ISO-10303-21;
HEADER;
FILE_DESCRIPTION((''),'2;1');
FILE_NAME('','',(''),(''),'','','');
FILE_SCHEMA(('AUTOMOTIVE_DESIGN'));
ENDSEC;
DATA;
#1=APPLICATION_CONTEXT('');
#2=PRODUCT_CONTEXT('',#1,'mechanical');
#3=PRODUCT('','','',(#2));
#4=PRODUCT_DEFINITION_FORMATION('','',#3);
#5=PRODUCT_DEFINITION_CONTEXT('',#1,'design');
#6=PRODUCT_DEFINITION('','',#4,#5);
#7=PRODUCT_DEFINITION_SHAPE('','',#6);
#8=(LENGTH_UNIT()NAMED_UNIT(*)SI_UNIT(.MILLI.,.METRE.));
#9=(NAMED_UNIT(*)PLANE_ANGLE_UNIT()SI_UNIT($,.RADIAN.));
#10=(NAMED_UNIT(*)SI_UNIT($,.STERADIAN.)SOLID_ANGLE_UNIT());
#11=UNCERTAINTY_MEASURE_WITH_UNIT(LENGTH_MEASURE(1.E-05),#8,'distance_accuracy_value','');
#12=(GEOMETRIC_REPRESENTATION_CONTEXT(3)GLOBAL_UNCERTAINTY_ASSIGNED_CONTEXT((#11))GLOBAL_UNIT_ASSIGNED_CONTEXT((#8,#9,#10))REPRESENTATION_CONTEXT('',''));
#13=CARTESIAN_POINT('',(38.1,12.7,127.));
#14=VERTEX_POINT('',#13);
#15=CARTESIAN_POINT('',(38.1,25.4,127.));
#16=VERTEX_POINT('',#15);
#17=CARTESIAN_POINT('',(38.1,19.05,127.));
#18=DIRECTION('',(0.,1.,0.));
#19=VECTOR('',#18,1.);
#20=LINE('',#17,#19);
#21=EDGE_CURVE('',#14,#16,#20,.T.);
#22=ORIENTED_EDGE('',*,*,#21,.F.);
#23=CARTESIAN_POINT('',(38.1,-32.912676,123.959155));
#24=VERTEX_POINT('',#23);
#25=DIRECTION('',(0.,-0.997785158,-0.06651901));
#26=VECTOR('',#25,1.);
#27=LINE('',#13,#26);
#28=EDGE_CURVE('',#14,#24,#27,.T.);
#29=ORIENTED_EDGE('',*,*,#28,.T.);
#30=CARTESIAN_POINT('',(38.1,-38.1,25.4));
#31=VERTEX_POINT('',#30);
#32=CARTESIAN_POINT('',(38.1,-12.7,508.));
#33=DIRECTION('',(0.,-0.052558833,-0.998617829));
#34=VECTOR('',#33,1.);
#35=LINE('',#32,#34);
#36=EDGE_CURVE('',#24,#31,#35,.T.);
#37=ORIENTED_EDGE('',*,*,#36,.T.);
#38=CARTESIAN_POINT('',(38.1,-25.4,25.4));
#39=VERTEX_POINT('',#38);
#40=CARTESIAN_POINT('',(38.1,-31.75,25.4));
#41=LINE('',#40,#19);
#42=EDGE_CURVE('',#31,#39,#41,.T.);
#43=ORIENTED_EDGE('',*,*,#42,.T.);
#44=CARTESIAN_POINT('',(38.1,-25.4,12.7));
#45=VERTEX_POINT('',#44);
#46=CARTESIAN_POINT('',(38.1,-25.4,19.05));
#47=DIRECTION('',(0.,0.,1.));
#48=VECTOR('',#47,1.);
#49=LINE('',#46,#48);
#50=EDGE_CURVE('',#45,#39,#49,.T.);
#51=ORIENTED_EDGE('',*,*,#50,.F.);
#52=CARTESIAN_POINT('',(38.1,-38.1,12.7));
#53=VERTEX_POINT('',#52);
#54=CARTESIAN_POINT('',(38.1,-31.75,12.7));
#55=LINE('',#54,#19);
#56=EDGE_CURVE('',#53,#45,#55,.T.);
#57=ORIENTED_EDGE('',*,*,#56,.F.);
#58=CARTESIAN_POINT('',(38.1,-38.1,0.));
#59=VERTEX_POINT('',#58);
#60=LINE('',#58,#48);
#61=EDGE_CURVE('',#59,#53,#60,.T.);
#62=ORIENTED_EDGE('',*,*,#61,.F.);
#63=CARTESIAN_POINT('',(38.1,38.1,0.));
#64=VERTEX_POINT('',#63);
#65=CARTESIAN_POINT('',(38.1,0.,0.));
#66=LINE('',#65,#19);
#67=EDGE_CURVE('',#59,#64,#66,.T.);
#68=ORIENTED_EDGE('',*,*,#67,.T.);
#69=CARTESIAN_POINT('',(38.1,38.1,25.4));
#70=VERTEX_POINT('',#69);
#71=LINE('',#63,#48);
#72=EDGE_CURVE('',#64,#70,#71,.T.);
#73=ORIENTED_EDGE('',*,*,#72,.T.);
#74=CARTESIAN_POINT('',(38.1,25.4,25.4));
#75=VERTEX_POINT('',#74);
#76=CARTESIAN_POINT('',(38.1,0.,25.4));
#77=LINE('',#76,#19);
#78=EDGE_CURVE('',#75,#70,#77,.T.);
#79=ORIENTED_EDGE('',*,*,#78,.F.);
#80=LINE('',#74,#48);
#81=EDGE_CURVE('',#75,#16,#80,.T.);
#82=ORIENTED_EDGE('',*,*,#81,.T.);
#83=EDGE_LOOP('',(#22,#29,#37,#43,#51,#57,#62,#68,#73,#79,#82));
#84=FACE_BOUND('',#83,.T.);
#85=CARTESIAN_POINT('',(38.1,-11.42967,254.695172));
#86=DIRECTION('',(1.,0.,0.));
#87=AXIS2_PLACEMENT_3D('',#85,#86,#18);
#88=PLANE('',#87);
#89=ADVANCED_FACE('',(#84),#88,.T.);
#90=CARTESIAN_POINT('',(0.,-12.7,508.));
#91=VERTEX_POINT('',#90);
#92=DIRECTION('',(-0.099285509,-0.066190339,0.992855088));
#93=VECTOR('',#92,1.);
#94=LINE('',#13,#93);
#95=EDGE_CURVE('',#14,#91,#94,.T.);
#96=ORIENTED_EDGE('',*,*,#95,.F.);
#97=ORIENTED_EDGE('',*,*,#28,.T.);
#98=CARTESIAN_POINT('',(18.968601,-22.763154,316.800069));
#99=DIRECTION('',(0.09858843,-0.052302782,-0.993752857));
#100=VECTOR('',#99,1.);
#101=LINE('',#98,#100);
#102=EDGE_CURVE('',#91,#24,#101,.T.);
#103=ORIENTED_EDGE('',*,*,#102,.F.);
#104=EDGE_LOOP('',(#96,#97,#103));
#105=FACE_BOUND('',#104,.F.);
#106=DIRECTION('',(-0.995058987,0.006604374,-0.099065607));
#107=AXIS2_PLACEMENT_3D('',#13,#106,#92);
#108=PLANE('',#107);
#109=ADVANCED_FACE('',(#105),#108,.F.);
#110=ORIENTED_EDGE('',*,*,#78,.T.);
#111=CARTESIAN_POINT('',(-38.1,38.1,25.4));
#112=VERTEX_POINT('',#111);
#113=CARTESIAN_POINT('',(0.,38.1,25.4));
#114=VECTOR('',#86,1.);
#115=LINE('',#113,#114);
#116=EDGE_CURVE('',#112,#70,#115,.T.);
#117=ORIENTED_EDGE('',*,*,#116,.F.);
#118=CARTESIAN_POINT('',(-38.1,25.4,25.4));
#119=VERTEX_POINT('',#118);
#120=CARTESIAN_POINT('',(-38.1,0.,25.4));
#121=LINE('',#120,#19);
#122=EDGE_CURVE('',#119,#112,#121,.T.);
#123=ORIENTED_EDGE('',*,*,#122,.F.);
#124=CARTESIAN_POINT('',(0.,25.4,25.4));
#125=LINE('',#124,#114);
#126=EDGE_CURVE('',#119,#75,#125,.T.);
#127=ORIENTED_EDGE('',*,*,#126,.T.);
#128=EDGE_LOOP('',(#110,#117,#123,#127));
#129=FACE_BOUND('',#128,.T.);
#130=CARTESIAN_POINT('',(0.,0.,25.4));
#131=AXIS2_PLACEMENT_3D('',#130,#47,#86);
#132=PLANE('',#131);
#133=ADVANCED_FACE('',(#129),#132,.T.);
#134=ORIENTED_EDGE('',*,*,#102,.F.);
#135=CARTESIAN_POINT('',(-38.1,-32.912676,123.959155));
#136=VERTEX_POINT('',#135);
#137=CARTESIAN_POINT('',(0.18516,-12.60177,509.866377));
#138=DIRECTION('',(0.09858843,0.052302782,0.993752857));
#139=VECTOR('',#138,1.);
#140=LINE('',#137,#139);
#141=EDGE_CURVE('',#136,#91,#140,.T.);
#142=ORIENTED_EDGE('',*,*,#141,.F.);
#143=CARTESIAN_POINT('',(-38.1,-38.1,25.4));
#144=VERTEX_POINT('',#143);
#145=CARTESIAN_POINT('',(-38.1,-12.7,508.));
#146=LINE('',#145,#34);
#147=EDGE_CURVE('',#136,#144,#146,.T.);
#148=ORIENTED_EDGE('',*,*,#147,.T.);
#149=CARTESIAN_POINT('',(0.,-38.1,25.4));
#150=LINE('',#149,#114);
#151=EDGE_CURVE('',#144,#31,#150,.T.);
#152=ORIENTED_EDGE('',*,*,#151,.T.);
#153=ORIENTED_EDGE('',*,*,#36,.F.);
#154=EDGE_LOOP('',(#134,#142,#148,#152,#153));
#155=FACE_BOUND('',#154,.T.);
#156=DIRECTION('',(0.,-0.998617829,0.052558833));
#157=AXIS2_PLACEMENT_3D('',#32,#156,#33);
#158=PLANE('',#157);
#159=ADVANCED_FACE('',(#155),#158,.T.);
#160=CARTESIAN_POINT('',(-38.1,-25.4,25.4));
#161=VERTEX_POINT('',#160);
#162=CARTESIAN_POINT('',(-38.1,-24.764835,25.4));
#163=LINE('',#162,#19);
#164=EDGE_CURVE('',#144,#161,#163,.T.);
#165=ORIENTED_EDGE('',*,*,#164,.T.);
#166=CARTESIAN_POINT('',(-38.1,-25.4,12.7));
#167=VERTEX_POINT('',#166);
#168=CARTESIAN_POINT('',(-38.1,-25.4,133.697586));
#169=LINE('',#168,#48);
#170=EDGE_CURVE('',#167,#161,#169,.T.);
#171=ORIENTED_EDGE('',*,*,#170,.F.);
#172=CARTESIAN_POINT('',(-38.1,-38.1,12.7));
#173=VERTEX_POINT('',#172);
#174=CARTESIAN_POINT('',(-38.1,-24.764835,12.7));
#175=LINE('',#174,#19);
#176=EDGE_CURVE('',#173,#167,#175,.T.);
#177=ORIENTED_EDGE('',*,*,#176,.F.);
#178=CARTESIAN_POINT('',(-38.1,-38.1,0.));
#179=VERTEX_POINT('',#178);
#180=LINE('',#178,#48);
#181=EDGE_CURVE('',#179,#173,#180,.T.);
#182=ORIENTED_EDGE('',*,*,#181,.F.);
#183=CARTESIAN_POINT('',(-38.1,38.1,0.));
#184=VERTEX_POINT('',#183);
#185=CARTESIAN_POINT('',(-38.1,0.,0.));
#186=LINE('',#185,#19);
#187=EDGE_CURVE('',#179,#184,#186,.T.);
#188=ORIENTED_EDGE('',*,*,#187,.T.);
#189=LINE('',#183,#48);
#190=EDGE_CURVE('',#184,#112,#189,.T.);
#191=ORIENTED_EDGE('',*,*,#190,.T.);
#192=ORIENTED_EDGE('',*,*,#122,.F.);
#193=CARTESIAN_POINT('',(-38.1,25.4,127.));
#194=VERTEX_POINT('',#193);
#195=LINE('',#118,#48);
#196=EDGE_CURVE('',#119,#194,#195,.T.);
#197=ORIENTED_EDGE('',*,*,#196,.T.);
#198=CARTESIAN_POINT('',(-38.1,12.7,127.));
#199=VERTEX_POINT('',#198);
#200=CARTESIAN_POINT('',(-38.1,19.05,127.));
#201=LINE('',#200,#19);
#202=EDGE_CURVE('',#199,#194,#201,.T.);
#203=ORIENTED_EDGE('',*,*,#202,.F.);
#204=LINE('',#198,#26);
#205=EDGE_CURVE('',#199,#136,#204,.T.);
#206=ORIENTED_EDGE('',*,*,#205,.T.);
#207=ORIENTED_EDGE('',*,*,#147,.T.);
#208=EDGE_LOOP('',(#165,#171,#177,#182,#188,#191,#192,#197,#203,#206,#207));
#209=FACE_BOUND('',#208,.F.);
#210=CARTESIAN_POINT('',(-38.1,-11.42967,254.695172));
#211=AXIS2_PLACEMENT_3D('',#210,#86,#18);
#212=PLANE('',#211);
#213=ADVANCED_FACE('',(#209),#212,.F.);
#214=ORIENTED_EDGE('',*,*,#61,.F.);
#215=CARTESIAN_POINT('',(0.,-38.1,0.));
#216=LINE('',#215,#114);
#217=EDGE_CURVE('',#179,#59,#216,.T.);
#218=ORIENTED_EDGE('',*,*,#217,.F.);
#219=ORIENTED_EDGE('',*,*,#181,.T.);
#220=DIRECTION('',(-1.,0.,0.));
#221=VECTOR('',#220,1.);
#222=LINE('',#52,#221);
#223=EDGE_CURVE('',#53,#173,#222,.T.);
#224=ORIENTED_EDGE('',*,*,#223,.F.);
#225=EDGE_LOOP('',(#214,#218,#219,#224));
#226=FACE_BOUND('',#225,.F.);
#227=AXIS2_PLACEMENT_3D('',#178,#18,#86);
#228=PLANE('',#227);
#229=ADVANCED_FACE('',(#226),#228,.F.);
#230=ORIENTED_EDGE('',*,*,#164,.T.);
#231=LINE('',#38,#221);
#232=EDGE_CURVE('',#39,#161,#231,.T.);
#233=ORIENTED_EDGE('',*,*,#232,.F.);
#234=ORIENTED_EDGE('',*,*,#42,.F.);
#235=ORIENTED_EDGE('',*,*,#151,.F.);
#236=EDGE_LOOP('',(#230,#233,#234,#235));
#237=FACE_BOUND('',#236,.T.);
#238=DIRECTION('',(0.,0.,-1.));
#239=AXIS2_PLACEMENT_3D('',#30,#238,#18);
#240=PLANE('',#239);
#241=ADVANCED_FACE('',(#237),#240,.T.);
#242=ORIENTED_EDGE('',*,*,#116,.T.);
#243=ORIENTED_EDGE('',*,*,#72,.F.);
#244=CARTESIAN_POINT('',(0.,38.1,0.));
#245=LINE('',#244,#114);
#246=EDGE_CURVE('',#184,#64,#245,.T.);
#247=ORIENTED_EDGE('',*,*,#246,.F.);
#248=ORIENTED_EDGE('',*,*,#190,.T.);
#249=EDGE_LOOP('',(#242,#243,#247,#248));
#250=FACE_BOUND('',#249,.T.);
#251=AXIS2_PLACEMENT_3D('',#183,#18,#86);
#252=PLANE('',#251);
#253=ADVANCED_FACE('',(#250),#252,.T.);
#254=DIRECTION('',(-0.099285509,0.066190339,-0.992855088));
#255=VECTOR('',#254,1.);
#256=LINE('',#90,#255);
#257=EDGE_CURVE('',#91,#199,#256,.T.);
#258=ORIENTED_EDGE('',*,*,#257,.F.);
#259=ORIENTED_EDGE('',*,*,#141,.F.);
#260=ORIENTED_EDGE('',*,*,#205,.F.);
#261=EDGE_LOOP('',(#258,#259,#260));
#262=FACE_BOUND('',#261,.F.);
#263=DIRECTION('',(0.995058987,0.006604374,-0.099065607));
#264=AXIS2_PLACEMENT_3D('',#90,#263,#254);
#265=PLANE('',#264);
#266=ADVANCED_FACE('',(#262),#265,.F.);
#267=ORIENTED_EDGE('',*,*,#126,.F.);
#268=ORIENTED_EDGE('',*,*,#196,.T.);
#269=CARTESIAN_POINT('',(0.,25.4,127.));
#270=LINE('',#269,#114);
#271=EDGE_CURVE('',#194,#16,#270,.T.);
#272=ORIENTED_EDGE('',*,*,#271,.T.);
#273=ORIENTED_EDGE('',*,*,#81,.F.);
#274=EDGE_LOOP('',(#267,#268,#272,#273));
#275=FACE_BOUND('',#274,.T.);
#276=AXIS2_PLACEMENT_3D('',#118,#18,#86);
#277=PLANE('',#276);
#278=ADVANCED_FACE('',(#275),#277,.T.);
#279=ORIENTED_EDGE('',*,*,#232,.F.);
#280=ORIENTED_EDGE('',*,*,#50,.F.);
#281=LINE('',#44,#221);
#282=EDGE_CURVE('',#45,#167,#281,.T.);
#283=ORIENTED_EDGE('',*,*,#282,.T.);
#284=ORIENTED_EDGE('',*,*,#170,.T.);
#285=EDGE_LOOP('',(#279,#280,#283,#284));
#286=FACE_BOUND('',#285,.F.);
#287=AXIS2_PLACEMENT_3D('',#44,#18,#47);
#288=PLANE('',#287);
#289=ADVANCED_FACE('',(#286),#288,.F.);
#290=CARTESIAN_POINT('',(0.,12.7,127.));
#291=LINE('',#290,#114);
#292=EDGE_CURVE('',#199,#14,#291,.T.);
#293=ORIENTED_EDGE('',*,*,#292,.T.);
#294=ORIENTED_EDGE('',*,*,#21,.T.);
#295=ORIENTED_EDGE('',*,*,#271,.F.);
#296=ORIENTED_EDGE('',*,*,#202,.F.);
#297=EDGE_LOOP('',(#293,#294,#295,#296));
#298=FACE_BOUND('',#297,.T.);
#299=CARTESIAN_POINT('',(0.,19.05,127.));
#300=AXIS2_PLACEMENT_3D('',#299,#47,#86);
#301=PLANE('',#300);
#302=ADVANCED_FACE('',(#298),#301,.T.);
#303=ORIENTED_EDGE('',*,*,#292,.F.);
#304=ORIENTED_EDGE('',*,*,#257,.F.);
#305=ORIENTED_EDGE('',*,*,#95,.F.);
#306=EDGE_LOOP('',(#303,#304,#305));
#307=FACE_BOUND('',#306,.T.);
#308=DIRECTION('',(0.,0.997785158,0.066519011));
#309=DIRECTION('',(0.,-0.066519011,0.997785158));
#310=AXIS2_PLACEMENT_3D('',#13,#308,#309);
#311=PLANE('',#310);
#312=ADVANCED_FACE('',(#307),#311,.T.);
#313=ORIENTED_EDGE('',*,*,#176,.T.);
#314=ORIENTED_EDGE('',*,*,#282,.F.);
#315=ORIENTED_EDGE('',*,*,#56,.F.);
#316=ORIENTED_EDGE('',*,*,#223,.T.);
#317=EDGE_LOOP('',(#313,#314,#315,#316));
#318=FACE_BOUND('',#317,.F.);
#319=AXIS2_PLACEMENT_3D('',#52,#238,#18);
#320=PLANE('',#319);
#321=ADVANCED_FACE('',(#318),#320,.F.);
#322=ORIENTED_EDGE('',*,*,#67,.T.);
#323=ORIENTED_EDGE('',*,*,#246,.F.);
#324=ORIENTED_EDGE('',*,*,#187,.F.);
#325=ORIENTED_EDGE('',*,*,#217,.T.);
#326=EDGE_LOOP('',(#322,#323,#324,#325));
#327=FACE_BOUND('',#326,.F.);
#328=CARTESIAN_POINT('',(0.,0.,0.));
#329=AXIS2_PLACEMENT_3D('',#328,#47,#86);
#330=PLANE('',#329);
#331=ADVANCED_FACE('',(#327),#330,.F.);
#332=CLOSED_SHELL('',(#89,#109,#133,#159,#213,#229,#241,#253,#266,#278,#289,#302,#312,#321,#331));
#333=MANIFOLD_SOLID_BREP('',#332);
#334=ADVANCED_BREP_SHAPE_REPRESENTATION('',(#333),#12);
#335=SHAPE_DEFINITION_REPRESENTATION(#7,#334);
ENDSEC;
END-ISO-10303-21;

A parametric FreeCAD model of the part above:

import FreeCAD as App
import Part
import Sketcher

V = App.Vector
Q = App.Units.Quantity

doc = App.newDocument("Part")
body = doc.addObject("PartDesign::Body", "Body")

sketch1 = body.newObject("Sketcher::SketchObject", "Sketch")
sketch1.AttachmentSupport = (doc.getObject("XY_Plane"), [""])
sketch1.MapMode = "FlatFace"
sketch1.addGeometry(Part.LineSegment(V(-38, 38, 0), V(-38, -38, 0)), False)
sketch1.addGeometry(Part.LineSegment(V(-38, -38, 0), V(38, -38, 0)), False)
sketch1.addGeometry(Part.LineSegment(V(38, -38, 0), V(38, 38, 0)), False)
sketch1.addGeometry(Part.LineSegment(V(38, 38, 0), V(-38, 38, 0)), False)
sketch1.addConstraint(Sketcher.Constraint("Coincident", 0, 2, 1, 1))
sketch1.addConstraint(Sketcher.Constraint("Coincident", 1, 2, 2, 1))
sketch1.addConstraint(Sketcher.Constraint("Coincident", 2, 2, 3, 1))
sketch1.addConstraint(Sketcher.Constraint("Coincident", 3, 2, 0, 1))
sketch1.addConstraint(Sketcher.Constraint("Vertical", 0))
sketch1.addConstraint(Sketcher.Constraint("Horizontal", 1))
sketch1.addConstraint(Sketcher.Constraint("Vertical", 2))
sketch1.addConstraint(Sketcher.Constraint("Horizontal", 3))
sketch1.addConstraint(Sketcher.Constraint("Symmetric", 0, 2, 2, 2, -1, 1))
sketch1.addConstraint(Sketcher.Constraint("Equal", 3, 0))
sketch1.addConstraint(Sketcher.Constraint("DistanceX", 1, 1, 1, 2, Q("3 in")))
pad1 = body.newObject("PartDesign::Pad", "Pad")
pad1.Profile = sketch1
pad1.Length = Q("1 in")

sketch2 = body.newObject("Sketcher::SketchObject", "Sketch001")
sketch2.AttachmentSupport = (doc.getObject("XY_Plane"), [""])
sketch2.MapMode = "FlatFace"
sketch2.AttachmentOffset = App.Placement(V(0, 0, 1 * 25.4), App.Rotation())
sketch2.addGeometry(Part.LineSegment(V(-38, 25, 0), V(-38, 13, 0)), False)
sketch2.addGeometry(Part.LineSegment(V(-38, 13, 0), V(38, 13, 0)), False)
sketch2.addGeometry(Part.LineSegment(V(38, 13, 0), V(38, 25, 0)), False)
sketch2.addGeometry(Part.LineSegment(V(38, 25, 0), V(-38, 25, 0)), False)
sketch2.addConstraint(Sketcher.Constraint("Coincident", 0, 2, 1, 1))
sketch2.addConstraint(Sketcher.Constraint("Coincident", 1, 2, 2, 1))
sketch2.addConstraint(Sketcher.Constraint("Coincident", 2, 2, 3, 1))
sketch2.addConstraint(Sketcher.Constraint("Coincident", 3, 2, 0, 1))
sketch2.addConstraint(Sketcher.Constraint("Vertical", 0))
sketch2.addConstraint(Sketcher.Constraint("Horizontal", 1))
sketch2.addConstraint(Sketcher.Constraint("Vertical", 2))
sketch2.addConstraint(Sketcher.Constraint("Horizontal", 3))
sketch2.addConstraint(Sketcher.Constraint("DistanceX", 1, 1, 1, 2, Q("3 in")))
sketch2.addConstraint(Sketcher.Constraint("DistanceY", 0, 2, 0, 1, Q("0.5 in")))
sketch2.addConstraint(Sketcher.Constraint("DistanceY", -1, 1, 2, 2, Q("1 in")))
sketch2.addConstraint(Sketcher.Constraint("DistanceX", 0, 2, -1, 1, Q("1.5 in")))
pad2 = body.newObject("PartDesign::Pad", "Pad001")
pad2.Profile = sketch2
pad2.Length = Q("4 in")

sketch3 = body.newObject("Sketcher::SketchObject", "Sketch002")
sketch3.AttachmentSupport = (doc.getObject("YZ_Plane"), [""])
sketch3.MapMode = "FlatFace"
sketch3.AttachmentOffset = App.Placement(V(0, 0, 1.5 * 25.4), App.Rotation())
sketch3.addGeometry(Part.LineSegment(V(-38, 25, 0), V(13, 25, 0)), False)
sketch3.addGeometry(Part.LineSegment(V(13, 25, 0), V(13, 127, 0)), False)
sketch3.addGeometry(Part.LineSegment(V(13, 127, 0), V(-13, 508, 0)), False)
sketch3.addGeometry(Part.LineSegment(V(-13, 508, 0), V(-38, 25, 0)), False)
sketch3.addConstraint(Sketcher.Constraint("Coincident", 0, 2, 1, 1))
sketch3.addConstraint(Sketcher.Constraint("Coincident", 1, 2, 2, 1))
sketch3.addConstraint(Sketcher.Constraint("Coincident", 2, 2, 3, 1))
sketch3.addConstraint(Sketcher.Constraint("Coincident", 3, 2, 0, 1))
sketch3.addConstraint(Sketcher.Constraint("Horizontal", 0))
sketch3.addConstraint(Sketcher.Constraint("Vertical", 1))
sketch3.addConstraint(Sketcher.Constraint("DistanceX", 0, 1, 0, 2, Q("2 in")))
sketch3.addConstraint(Sketcher.Constraint("DistanceY", 1, 1, 1, 2, Q("4 in")))
sketch3.addConstraint(Sketcher.Constraint("DistanceY", -1, 1, 0, 2, Q("1 in")))
sketch3.addConstraint(Sketcher.Constraint("DistanceY", -1, 1, 2, 2, Q("20 in")))
sketch3.addConstraint(Sketcher.Constraint("DistanceX", 2, 2, 1, 2, Q("1 in")))
sketch3.addConstraint(Sketcher.Constraint("DistanceX", -1, 1, 0, 2, Q("0.5 in")))
pad3 = body.newObject("PartDesign::Pad", "Pad002")
pad3.Profile = sketch3
pad3.Length = Q("3 in")
pad3.Reversed = True

sketch4 = body.newObject("Sketcher::SketchObject", "Sketch003")
sketch4.AttachmentSupport = (doc.getObject("YZ_Plane"), [""])
sketch4.MapMode = "FlatFace"
sketch4.AttachmentOffset = App.Placement(V(0, 0, 1.5 * 25.4), App.Rotation())
sketch4.addGeometry(Part.LineSegment(V(-38, 25, 0), V(-38, 13, 0)), False)
sketch4.addGeometry(Part.LineSegment(V(-38, 13, 0), V(-25, 13, 0)), False)
sketch4.addGeometry(Part.LineSegment(V(-25, 13, 0), V(-25, 25, 0)), False)
sketch4.addGeometry(Part.LineSegment(V(-25, 25, 0), V(-38, 25, 0)), False)
sketch4.addConstraint(Sketcher.Constraint("Coincident", 0, 2, 1, 1))
sketch4.addConstraint(Sketcher.Constraint("Coincident", 1, 2, 2, 1))
sketch4.addConstraint(Sketcher.Constraint("Coincident", 2, 2, 3, 1))
sketch4.addConstraint(Sketcher.Constraint("Coincident", 3, 2, 0, 1))
sketch4.addConstraint(Sketcher.Constraint("Vertical", 0))
sketch4.addConstraint(Sketcher.Constraint("Horizontal", 1))
sketch4.addConstraint(Sketcher.Constraint("Vertical", 2))
sketch4.addConstraint(Sketcher.Constraint("Horizontal", 3))
sketch4.addConstraint(Sketcher.Constraint("Equal", 3, 0))
sketch4.addConstraint(Sketcher.Constraint("DistanceX", 1, 1, 1, 2, Q("0.5 in")))
sketch4.addConstraint(Sketcher.Constraint("DistanceX", 1, 2, -1, 1, Q("1 in")))
sketch4.addConstraint(Sketcher.Constraint("DistanceY", -1, 1, 2, 2, Q("1 in")))
pocket1 = body.newObject("PartDesign::Pocket", "Pocket")
pocket1.Profile = sketch4
pocket1.Type = "ThroughAll"

sketch5 = body.newObject("Sketcher::SketchObject", "Sketch004")
sketch5.Placement = App.Placement(V(0, 21.073009, 1.404867), App.Rotation(V(-1, 0, 0), V(0, -0.06651901, 0.997785158), V(0, 0.997785158, 0.06651901), "ZXY"))
sketch5.addGeometry(Part.LineSegment(V(-38, 126, 0), V(0, 508, 0)), False)
sketch5.addGeometry(Part.LineSegment(V(0, 508, 0), V(-38, 508, 0)), False)
sketch5.addGeometry(Part.LineSegment(V(-38, 508, 0), V(-38, 126, 0)), False)
sketch5.addConstraint(Sketcher.Constraint("Coincident", 0, 2, 1, 1))
sketch5.addConstraint(Sketcher.Constraint("Coincident", 1, 2, 2, 1))
sketch5.addConstraint(Sketcher.Constraint("Coincident", 2, 2, 0, 1))
sketch5.addConstraint(Sketcher.Constraint("Horizontal", 1))
sketch5.addConstraint(Sketcher.Constraint("Vertical", 2))
sketch5.addConstraint(Sketcher.Constraint("PointOnObject", 0, 2, -2))
sketch5.addConstraint(Sketcher.Constraint("DistanceX", 1, 2, 1, 1, Q("1.5 in")))
sketch5.addConstraint(Sketcher.Constraint("Distance", 0, Q("383.741801 mm")))
sketch5.addConstraint(Sketcher.Constraint("DistanceY", -1, 1, 0, 2, Q("507.719652 mm")))
pocket2 = body.newObject("PartDesign::Pocket", "Pocket001")
pocket2.Profile = sketch5
pocket2.Type = "ThroughAll"

sketch6 = body.newObject("Sketcher::SketchObject", "Sketch005")
sketch6.Placement = App.Placement(V(0, 21.073009, 1.404867), App.Rotation(V(-1, 0, 0), V(0, -0.06651901, 0.997785158), V(0, 0.997785158, 0.06651901), "ZXY"))
sketch6.addGeometry(Part.LineSegment(V(38, 508, 0), V(0, 508, 0)), False)
sketch6.addGeometry(Part.LineSegment(V(0, 508, 0), V(38, 126, 0)), False)
sketch6.addGeometry(Part.LineSegment(V(38, 126, 0), V(38, 508, 0)), False)
sketch6.addConstraint(Sketcher.Constraint("Coincident", 0, 2, 1, 1))
sketch6.addConstraint(Sketcher.Constraint("Coincident", 1, 2, 2, 1))
sketch6.addConstraint(Sketcher.Constraint("Coincident", 2, 2, 0, 1))
sketch6.addConstraint(Sketcher.Constraint("Horizontal", 0))
sketch6.addConstraint(Sketcher.Constraint("Vertical", 2))
sketch6.addConstraint(Sketcher.Constraint("PointOnObject", 0, 2, -2))
sketch6.addConstraint(Sketcher.Constraint("DistanceX", 0, 2, 0, 1, Q("1.5 in")))
sketch6.addConstraint(Sketcher.Constraint("Distance", 1, Q("383.741801 mm")))
sketch6.addConstraint(Sketcher.Constraint("DistanceY", -1, 1, 0, 2, Q("507.719652 mm")))
pocket3 = body.newObject("PartDesign::Pocket", "Pocket002")
pocket3.Profile = sketch6
pocket3.Type = "ThroughAll"

doc.recompute()
